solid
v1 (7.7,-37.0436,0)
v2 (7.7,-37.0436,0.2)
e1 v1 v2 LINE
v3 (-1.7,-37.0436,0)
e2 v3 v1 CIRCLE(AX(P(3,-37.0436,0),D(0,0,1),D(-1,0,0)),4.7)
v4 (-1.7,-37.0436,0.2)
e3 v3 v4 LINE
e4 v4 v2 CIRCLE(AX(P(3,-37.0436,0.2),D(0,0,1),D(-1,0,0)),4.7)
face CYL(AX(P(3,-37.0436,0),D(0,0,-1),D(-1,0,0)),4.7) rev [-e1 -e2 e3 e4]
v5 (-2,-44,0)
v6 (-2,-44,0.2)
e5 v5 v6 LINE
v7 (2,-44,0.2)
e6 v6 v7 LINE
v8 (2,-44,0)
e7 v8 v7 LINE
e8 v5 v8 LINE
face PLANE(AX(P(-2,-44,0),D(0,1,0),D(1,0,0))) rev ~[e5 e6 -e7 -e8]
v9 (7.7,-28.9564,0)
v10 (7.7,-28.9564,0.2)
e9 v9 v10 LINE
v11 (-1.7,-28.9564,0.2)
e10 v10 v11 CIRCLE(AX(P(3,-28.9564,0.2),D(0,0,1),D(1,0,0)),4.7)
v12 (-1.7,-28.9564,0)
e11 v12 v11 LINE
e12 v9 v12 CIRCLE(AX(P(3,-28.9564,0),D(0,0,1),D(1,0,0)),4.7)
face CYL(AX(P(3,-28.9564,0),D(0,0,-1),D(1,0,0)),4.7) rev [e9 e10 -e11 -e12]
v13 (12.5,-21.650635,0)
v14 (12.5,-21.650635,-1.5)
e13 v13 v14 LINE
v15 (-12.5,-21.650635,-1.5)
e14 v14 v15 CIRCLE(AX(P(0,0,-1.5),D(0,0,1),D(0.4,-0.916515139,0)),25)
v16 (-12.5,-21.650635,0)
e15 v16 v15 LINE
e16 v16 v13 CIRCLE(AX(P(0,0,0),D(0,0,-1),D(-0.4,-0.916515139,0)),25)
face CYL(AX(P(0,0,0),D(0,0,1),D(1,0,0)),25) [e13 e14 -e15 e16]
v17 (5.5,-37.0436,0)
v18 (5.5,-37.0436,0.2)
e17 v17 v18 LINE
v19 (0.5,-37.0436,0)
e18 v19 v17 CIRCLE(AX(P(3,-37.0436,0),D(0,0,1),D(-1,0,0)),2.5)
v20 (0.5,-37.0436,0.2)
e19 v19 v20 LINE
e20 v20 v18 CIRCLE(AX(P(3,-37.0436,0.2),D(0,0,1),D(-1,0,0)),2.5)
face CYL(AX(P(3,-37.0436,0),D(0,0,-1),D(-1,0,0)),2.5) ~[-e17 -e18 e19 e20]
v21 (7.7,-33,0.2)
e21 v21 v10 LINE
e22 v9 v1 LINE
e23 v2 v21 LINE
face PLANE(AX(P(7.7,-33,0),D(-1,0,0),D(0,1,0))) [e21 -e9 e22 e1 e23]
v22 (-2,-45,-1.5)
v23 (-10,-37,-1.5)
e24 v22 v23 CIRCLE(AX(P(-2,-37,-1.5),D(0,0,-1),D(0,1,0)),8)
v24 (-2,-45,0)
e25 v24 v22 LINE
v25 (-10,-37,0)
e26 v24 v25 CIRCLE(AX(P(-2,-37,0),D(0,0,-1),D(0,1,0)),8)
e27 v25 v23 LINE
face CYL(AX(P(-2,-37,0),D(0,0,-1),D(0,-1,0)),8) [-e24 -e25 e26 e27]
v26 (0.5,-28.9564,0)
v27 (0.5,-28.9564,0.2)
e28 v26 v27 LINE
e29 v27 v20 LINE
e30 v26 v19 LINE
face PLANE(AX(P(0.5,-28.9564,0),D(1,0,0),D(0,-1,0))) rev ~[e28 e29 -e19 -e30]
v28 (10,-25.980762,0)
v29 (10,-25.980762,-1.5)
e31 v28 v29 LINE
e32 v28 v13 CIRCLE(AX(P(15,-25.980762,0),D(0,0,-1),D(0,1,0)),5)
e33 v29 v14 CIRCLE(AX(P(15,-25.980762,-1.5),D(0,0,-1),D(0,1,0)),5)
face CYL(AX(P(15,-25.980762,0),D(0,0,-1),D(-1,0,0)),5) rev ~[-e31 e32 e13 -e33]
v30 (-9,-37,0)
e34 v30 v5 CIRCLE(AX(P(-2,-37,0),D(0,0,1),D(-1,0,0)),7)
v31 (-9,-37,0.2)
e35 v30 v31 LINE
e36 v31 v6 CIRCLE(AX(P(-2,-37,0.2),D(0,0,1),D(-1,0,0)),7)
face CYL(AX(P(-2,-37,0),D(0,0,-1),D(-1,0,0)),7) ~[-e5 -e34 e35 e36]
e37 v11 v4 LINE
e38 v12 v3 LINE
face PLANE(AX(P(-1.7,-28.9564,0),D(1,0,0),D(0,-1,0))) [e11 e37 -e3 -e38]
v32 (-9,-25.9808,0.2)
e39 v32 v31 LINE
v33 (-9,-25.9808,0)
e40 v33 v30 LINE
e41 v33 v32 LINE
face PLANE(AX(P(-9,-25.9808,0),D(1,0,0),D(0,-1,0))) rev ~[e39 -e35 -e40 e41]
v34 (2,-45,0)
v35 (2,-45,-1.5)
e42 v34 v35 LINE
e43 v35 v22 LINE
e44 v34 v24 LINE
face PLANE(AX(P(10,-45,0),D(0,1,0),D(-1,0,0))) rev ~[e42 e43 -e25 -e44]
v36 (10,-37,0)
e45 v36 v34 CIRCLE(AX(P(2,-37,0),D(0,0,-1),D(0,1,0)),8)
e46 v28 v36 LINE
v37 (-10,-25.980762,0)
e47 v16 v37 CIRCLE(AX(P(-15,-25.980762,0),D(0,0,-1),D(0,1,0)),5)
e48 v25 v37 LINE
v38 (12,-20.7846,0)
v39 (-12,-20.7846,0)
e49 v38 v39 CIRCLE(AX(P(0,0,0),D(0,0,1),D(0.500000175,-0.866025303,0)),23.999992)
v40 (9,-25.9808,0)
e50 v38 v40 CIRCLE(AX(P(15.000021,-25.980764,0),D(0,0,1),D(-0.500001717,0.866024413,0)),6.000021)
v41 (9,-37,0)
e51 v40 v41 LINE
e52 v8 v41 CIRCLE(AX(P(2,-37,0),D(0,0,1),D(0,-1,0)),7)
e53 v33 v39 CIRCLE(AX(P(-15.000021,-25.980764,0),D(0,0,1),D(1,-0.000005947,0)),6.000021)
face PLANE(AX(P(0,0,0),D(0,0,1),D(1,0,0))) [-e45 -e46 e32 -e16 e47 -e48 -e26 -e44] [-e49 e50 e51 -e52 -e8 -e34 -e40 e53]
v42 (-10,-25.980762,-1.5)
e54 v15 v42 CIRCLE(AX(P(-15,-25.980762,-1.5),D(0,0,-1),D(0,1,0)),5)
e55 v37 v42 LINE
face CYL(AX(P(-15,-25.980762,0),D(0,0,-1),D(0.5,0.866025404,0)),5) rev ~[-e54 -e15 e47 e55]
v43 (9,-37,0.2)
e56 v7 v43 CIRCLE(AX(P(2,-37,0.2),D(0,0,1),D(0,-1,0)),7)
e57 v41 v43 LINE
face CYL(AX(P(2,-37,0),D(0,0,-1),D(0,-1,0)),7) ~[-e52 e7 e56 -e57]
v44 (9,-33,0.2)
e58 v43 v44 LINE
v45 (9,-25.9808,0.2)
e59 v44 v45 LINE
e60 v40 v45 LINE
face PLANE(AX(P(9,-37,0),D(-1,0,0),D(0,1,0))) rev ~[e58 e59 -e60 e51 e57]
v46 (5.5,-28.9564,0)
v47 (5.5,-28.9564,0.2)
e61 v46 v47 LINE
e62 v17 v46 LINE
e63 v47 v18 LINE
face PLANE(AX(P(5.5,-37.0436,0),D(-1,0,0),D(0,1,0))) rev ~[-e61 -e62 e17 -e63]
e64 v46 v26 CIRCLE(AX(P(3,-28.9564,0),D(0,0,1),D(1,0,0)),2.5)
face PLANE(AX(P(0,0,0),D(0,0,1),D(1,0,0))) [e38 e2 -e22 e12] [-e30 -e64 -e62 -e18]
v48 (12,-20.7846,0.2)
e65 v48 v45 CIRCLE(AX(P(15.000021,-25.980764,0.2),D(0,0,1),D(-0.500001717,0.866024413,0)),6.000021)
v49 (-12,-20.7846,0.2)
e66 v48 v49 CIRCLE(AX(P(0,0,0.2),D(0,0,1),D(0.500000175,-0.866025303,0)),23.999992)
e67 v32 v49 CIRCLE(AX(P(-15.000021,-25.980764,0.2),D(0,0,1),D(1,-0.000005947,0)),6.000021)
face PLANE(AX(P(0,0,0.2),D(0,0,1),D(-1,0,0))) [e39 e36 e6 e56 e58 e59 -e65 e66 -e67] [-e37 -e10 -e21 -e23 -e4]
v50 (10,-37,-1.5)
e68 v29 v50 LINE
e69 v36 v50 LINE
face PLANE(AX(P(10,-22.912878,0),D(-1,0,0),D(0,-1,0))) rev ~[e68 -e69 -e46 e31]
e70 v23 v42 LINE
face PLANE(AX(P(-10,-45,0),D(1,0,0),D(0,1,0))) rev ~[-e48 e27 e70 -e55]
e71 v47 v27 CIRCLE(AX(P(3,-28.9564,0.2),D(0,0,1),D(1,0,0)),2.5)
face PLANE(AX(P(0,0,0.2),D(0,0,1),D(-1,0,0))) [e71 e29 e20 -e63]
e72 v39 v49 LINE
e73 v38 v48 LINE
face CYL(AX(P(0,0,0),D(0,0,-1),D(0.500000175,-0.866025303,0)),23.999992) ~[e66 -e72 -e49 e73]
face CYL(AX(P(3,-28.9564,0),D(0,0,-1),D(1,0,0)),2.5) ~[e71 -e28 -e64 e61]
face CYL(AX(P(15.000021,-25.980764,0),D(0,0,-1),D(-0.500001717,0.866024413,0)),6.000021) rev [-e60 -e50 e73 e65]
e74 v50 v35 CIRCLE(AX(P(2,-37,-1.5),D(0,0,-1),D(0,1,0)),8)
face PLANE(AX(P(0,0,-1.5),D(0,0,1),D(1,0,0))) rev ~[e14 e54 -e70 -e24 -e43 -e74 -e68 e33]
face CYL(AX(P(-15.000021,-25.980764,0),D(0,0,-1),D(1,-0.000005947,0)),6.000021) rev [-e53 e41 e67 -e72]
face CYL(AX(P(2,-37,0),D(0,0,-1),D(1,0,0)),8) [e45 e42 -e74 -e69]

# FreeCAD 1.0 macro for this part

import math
import FreeCAD as App
import Part
import Sketcher

V = App.Vector
Q = App.Units.Quantity


def edges_at(feature, points):
    """Names of the edges that pass closest to the given points."""
    edges = feature.Shape.Edges
    near = lambda p: min(range(len(edges)), key=lambda i: edges[i].distToShape(Part.Vertex(*p))[0])
    return sorted({f"Edge{near(p) + 1}" for p in points})

doc = App.newDocument("Part")
params = doc.addObject("Spreadsheet::Sheet", "Params")
for row, (alias, value) in enumerate([
    ("sketch1_radius", "25 mm"),
    ("sketch1_width", "20 mm"),
    ("pad1_length", "1.5 mm"),
    ("fillet_radius", "8 mm"),
    ("fillet2_radius", "5 mm"),
    ("sketch2_radius", "7 mm"),
    ("sketch2_radius2", "2.5 mm"),
    ("sketch2_radius3", "6 mm"),
    ("sketch2_radius4", "24 mm"),
    ("sketch2_radius5", "4.7 mm"),
    ("pad2_length", "0.2 mm"),
], start=1):
    params.set(f"A{row}", alias)
    params.set(f"B{row}", "=" + value)
    params.setAlias(f"B{row}", alias)

body = doc.addObject("PartDesign::Body", "Body")

# Sketch on XY plane
sketch1 = body.newObject("Sketcher::SketchObject", "Sketch")
sketch1.AttachmentSupport = (doc.getObject("XY_Plane"), [""])
sketch1.MapMode = "FlatFace"
sketch1.addGeometry([
    Part.ArcOfCircle(Part.Circle(V(0, 0, 0), V(0, 0, 1), 25), math.radians(-66), math.radians(246)),
    Part.LineSegment(V(-10, -23, 0), V(-10, -45, 0)),
    Part.LineSegment(V(-10, -45, 0), V(10, -45, 0)),
    Part.LineSegment(V(10, -45, 0), V(10, -23, 0)),
], False)
sketch1.addConstraint([
    Sketcher.Constraint("Coincident", 0, 2, 1, 1),
    Sketcher.Constraint("Coincident", 1, 2, 2, 1),
    Sketcher.Constraint("Coincident", 2, 2, 3, 1),
    Sketcher.Constraint("Coincident", 3, 2, 0, 1),
    Sketcher.Constraint("Vertical", 1),
    Sketcher.Constraint("Horizontal", 2),
    Sketcher.Constraint("Vertical", 3),
    Sketcher.Constraint("Coincident", 0, 3, -1, 1),
    Sketcher.Constraint("Horizontal", 0, 2, 3, 2),
    Sketcher.Constraint("Radius", 0, Q("25 mm")),
    Sketcher.Constraint("DistanceX", 2, 1, 2, 2, Q("20 mm")),
    Sketcher.Constraint("DistanceY", 1, 2, -1, 1, Q("45 mm")),
])
sketch1.setExpression("Constraints[9]", "Params.sketch1_radius")
sketch1.setExpression("Constraints[10]", "Params.sketch1_width")
pad1 = body.newObject("PartDesign::Pad", "Pad")
pad1.Profile = sketch1
pad1.setExpression("Length", "Params.pad1_length")
pad1.Reversed = True
doc.recompute()

fillet = body.newObject("PartDesign::Fillet", "Fillet")
fillet.Base = (pad1, edges_at(pad1, [(-10, -45, -0.75), (10, -45, -0.75)]))
fillet.setExpression("Radius", "Params.fillet_radius")
doc.recompute()

fillet2 = body.newObject("PartDesign::Fillet", "Fillet001")
fillet2.Base = (fillet, edges_at(fillet, [(-10, -22.913, -0.75), (10, -22.913, -0.75)]))
fillet2.setExpression("Radius", "Params.fillet2_radius")

# Sketch on XY plane
sketch2 = body.newObject("Sketcher::SketchObject", "Sketch001")
sketch2.AttachmentSupport = (doc.getObject("XY_Plane"), [""])
sketch2.MapMode = "FlatFace"
sketch2.addGeometry([
    Part.LineSegment(V(5.5, -37, 0), V(5.5, -29, 0)),  # 0
    Part.ArcOfCircle(Part.Circle(V(3, -29, 0), V(0, 0, 1), 2.5), math.radians(0), math.radians(180)),  # 1
    Part.LineSegment(V(0.5, -29, 0), V(0.5, -37, 0)),  # 2
    Part.ArcOfCircle(Part.Circle(V(3, -37, 0), V(0, 0, 1), 2.5), math.radians(180), math.radians(360)),  # 3
    Part.LineSegment(V(9, -37, 0), V(9, -33, 0)),  # 4
    Part.LineSegment(V(9, -33, 0), V(9, -26, 0)),  # 5
    Part.ArcOfCircle(Part.Circle(V(15, -26, 0), V(0, 0, 1), 6), math.radians(120), math.radians(180)),  # 6
    Part.ArcOfCircle(Part.Circle(V(0, 0, 0), V(0, 0, 1), 24), math.radians(-60), math.radians(240)),  # 7
    Part.ArcOfCircle(Part.Circle(V(-15, -26, 0), V(0, 0, 1), 6), math.radians(0), math.radians(60)),  # 8
    Part.LineSegment(V(-9, -26, 0), V(-9, -37, 0)),  # 9
    Part.ArcOfCircle(Part.Circle(V(-2, -37, 0), V(0, 0, 1), 7), math.radians(180), math.radians(270)),  # 10
    Part.LineSegment(V(-2, -44, 0), V(2, -44, 0)),  # 11
    Part.ArcOfCircle(Part.Circle(V(2, -37, 0), V(0, 0, 1), 7), math.radians(-90), math.radians(0)),  # 12
    Part.LineSegment(V(7.7, -29, 0), V(7.7, -33, 0)),  # 13
    Part.LineSegment(V(7.7, -33, 0), V(7.7, -37, 0)),  # 14
    Part.ArcOfCircle(Part.Circle(V(3, -37, 0), V(0, 0, 1), 4.7), math.radians(180), math.radians(360)),  # 15
    Part.LineSegment(V(-1.7, -37, 0), V(-1.7, -29, 0)),  # 16
    Part.ArcOfCircle(Part.Circle(V(3, -29, 0), V(0, 0, 1), 4.7), math.radians(0), math.radians(180)),  # 17
], False)
sketch2.addConstraint([
    Sketcher.Constraint("Tangent", 0, 2, 1, 1),
    Sketcher.Constraint("Tangent", 1, 2, 2, 1),
    Sketcher.Constraint("Tangent", 2, 2, 3, 1),
    Sketcher.Constraint("Tangent", 3, 2, 0, 1),
    Sketcher.Constraint("Coincident", 4, 2, 5, 1),
    Sketcher.Constraint("Tangent", 5, 2, 6, 2),
    Sketcher.Constraint("Tangent", 6, 1, 7, 1),
    Sketcher.Constraint("Tangent", 7, 2, 8, 2),
    Sketcher.Constraint("Tangent", 8, 1, 9, 1),
    Sketcher.Constraint("Tangent", 9, 2, 10, 1),
    Sketcher.Constraint("Tangent", 10, 2, 11, 1),
    Sketcher.Constraint("Tangent", 11, 2, 12, 1),
    Sketcher.Constraint("Tangent", 12, 2, 4, 1),
    Sketcher.Constraint("Coincident", 13, 2, 14, 1),
    Sketcher.Constraint("Tangent", 14, 2, 15, 2),
    Sketcher.Constraint("Tangent", 15, 1, 16, 1),
    Sketcher.Constraint("Tangent", 16, 2, 17, 2),
    Sketcher.Constraint("Tangent", 17, 1, 13, 1),
    Sketcher.Constraint("Vertical", 0),
    Sketcher.Constraint("Vertical", 2),
    Sketcher.Constraint("Vertical", 4),
    Sketcher.Constraint("Vertical", 5),
    Sketcher.Constraint("Vertical", 9),
    Sketcher.Constraint("Horizontal", 11),
    Sketcher.Constraint("Vertical", 13),
    Sketcher.Constraint("Vertical", 14),
    Sketcher.Constraint("Vertical", 16),
    Sketcher.Constraint("Coincident", 7, 3, -1, 1),
    Sketcher.Constraint("Coincident", 15, 3, 3, 3),
    Sketcher.Constraint("Equal", 6, 8),
    Sketcher.Constraint("Equal", 10, 12),
    Sketcher.Constraint("Horizontal", 6, 3, 8, 3),
    Sketcher.Constraint("Horizontal", 17, 3, 0, 2),
    Sketcher.Constraint("Horizontal", 4, 2, 13, 2),
    Sketcher.Constraint("Equal", 11, 4),
    Sketcher.Constraint("Equal", 13, 14),
    Sketcher.Constraint("Radius", 10, Q("7 mm")),
    Sketcher.Constraint("Radius", 1, Q("2.5 mm")),
    Sketcher.Constraint("Radius", 6, Q("6 mm")),
    Sketcher.Constraint("Radius", 7, Q("24 mm")),
    Sketcher.Constraint("DistanceX", 10, 3, 3, 3, Q("5 mm")),
    Sketcher.Constraint("DistanceX", 12, 3, 3, 3, Q("1 mm")),
    Sketcher.Constraint("Radius", 15, Q("4.7 mm")),
    Sketcher.Constraint("DistanceY", 10, 3, -1, 1, Q("37 mm")),
    Sketcher.Constraint("DistanceY", 0, 1, 0, 2, Q("8.0872 mm")),
])
sketch2.setExpression("Constraints[36]", "Params.sketch2_radius")
sketch2.setExpression("Constraints[37]", "Params.sketch2_radius2")
sketch2.setExpression("Constraints[38]", "Params.sketch2_radius3")
sketch2.setExpression("Constraints[39]", "Params.sketch2_radius4")
sketch2.setExpression("Constraints[42]", "Params.sketch2_radius5")
pad2 = body.newObject("PartDesign::Pad", "Pad001")
pad2.Profile = sketch2
pad2.setExpression("Length", "Params.pad2_length")

doc.recompute()
